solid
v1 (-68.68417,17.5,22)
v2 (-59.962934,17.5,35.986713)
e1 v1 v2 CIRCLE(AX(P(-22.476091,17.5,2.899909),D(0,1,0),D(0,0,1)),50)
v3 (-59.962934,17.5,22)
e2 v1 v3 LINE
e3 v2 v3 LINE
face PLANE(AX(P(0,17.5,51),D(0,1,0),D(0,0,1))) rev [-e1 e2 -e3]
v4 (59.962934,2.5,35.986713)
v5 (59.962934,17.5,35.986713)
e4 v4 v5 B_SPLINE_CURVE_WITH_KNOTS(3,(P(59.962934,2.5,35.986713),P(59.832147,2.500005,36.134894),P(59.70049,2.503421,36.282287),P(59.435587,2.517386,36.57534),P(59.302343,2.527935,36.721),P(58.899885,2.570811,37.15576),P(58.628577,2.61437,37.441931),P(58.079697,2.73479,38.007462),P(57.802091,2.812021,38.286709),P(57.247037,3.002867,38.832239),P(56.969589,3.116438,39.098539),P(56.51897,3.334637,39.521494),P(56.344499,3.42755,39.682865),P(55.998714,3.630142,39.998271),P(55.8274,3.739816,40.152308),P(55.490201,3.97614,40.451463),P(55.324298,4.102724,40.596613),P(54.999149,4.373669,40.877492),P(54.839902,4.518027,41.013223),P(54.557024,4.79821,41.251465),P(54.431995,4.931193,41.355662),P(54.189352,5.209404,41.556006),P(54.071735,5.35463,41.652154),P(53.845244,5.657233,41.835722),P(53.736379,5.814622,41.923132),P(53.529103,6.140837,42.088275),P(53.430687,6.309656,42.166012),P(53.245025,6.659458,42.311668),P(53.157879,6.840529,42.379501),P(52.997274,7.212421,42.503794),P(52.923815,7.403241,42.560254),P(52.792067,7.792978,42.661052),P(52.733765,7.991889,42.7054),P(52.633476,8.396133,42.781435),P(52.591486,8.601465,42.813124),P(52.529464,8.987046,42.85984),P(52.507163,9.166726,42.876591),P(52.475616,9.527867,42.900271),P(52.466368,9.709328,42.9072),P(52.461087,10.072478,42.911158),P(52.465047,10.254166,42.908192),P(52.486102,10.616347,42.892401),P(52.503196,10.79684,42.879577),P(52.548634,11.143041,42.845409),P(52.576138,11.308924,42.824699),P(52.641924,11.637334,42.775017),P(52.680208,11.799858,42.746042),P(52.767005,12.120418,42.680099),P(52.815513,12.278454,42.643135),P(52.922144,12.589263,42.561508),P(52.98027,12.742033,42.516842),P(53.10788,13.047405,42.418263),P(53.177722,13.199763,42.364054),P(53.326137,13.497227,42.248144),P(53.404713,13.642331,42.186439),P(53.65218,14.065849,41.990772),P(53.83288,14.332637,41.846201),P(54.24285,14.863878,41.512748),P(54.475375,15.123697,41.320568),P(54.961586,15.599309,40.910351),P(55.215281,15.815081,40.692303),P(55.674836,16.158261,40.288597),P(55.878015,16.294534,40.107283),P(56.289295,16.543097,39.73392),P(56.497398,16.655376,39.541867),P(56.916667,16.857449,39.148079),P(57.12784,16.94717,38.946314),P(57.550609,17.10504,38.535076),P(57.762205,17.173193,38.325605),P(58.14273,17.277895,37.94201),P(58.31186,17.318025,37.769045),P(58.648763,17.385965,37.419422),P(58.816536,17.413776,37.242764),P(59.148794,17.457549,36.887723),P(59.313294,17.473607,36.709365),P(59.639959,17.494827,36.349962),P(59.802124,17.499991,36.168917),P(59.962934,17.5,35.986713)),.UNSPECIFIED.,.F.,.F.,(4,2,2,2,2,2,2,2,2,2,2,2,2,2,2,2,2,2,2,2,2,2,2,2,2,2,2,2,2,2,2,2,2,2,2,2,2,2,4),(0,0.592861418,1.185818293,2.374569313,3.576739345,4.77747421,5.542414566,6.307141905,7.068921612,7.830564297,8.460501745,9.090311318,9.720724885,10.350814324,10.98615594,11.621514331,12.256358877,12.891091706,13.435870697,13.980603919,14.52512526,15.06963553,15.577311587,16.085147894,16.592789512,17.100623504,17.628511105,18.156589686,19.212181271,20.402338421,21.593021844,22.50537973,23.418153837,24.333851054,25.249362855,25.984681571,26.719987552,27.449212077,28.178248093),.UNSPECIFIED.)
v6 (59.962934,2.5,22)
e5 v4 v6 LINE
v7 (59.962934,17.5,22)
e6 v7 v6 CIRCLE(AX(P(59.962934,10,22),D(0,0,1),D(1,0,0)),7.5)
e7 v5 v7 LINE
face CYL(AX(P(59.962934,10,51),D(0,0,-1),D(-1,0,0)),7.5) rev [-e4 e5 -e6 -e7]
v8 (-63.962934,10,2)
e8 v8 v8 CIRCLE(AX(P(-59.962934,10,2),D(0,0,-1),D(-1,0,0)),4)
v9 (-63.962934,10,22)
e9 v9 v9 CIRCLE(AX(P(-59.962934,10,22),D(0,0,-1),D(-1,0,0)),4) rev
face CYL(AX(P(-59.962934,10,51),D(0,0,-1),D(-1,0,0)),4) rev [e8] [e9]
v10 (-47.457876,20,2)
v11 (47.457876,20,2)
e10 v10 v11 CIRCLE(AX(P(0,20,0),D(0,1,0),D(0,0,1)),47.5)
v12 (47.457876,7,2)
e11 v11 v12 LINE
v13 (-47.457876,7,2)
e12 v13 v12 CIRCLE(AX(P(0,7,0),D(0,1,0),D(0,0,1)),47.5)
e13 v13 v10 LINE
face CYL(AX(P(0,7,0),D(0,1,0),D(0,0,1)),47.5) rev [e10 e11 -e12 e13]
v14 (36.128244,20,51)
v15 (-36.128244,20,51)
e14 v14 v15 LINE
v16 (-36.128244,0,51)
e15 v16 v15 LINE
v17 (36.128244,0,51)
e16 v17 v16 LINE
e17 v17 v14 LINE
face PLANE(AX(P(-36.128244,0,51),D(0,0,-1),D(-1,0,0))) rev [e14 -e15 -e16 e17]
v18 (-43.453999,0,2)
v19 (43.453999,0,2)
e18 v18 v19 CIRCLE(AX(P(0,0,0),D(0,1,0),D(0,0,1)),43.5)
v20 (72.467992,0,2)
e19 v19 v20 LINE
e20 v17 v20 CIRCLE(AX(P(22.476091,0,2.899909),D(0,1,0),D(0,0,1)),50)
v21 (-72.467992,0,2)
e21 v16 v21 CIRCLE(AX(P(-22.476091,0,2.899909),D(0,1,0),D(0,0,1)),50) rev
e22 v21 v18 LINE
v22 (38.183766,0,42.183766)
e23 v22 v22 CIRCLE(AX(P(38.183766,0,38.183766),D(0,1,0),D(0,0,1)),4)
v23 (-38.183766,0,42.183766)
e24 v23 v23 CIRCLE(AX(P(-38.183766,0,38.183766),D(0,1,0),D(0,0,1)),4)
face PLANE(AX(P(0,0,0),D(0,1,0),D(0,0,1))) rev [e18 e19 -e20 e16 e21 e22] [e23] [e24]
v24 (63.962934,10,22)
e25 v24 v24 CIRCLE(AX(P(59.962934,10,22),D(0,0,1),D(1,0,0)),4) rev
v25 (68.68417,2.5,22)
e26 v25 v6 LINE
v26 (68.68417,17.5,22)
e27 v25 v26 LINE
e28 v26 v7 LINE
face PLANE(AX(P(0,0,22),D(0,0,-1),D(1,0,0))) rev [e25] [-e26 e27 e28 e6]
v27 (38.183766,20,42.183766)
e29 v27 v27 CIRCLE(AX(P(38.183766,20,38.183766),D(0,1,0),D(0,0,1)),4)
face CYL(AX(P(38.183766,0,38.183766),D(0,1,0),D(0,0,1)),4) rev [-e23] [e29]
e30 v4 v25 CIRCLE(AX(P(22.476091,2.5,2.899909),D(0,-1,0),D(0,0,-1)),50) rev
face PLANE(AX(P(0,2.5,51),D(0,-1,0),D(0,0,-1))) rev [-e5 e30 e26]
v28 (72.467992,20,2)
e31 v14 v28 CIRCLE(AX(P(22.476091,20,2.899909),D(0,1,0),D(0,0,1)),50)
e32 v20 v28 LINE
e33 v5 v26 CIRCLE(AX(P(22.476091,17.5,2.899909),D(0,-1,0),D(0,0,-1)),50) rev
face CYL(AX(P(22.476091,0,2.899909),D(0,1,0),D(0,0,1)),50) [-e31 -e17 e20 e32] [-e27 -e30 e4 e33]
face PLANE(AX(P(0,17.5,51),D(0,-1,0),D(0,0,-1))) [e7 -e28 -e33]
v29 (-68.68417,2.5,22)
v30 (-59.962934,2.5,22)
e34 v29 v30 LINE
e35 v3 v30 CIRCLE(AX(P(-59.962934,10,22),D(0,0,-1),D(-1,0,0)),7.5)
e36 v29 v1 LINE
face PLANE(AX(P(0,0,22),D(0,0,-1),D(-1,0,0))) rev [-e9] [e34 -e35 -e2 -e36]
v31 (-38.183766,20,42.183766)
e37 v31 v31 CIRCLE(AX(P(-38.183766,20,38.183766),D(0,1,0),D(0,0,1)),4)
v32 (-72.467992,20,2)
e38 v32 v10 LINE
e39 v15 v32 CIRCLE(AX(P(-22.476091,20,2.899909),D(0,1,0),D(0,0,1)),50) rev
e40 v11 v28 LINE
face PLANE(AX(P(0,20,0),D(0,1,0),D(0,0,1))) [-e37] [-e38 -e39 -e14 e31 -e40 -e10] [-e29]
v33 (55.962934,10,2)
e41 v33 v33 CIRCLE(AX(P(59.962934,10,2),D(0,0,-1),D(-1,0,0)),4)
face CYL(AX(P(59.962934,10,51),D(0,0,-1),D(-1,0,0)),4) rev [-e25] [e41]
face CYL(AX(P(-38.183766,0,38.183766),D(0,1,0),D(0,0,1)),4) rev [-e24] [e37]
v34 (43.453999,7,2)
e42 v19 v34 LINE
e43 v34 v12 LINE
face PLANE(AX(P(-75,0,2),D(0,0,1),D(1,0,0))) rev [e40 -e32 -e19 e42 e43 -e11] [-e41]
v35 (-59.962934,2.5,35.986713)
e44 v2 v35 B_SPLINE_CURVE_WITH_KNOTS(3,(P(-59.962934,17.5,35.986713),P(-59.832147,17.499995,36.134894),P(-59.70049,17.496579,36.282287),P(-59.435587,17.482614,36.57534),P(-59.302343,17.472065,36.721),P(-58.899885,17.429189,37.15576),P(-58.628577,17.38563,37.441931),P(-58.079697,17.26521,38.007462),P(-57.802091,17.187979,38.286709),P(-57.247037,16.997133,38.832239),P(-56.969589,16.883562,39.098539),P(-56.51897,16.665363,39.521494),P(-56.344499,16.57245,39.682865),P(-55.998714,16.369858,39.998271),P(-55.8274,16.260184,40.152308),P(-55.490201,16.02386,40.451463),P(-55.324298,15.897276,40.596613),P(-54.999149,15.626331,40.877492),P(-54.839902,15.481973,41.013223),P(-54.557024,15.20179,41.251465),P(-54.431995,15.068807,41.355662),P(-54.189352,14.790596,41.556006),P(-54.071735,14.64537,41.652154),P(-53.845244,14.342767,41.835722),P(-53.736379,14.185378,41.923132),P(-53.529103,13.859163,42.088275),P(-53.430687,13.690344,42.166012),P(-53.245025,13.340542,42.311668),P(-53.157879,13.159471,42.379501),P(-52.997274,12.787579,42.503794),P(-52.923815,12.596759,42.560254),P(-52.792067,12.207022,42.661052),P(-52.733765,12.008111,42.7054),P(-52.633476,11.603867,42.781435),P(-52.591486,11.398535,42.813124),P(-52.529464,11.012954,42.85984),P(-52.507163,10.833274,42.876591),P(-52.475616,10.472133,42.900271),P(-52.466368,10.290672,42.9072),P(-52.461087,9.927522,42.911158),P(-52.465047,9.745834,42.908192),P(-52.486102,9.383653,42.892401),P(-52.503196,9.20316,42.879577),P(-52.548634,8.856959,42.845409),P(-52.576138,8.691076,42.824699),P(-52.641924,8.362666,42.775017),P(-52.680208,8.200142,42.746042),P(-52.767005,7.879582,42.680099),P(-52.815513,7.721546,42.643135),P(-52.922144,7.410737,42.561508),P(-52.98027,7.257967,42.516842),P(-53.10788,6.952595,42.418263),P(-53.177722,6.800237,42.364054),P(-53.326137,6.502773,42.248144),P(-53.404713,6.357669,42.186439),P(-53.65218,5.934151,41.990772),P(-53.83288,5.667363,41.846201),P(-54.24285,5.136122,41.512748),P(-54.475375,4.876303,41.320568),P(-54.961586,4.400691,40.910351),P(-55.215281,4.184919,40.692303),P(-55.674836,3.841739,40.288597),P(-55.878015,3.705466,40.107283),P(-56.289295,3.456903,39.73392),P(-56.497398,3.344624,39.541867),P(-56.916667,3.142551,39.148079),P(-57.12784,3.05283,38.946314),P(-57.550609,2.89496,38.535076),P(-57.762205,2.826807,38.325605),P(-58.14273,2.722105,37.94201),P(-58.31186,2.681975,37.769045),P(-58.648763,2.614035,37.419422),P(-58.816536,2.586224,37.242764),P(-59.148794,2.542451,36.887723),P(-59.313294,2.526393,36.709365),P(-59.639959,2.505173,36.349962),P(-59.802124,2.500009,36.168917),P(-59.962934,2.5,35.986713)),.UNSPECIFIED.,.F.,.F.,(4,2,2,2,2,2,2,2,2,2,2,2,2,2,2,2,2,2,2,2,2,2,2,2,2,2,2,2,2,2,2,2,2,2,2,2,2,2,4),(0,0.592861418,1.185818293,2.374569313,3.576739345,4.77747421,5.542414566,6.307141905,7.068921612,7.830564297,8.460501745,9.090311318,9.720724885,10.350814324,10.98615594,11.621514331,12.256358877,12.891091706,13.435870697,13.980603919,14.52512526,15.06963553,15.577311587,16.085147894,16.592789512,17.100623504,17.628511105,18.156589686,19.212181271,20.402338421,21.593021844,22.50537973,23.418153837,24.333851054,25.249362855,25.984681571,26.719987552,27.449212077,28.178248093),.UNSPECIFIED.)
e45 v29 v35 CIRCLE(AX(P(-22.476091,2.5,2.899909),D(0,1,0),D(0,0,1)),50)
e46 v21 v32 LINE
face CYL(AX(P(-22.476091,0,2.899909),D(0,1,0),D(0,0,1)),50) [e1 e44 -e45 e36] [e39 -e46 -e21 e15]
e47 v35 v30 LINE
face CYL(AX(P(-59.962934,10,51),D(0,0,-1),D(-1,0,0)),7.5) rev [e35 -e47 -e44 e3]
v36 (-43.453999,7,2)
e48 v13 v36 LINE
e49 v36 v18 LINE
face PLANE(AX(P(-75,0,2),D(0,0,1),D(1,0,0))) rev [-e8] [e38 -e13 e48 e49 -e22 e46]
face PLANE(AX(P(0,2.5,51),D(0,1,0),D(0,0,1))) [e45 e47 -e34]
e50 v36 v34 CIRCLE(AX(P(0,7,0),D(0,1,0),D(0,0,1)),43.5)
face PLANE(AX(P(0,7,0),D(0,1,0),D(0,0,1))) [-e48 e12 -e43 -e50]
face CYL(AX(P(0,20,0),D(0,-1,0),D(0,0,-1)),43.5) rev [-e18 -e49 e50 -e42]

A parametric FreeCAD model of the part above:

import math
import FreeCAD as App
import Part
import Sketcher

V = App.Vector


def add_polygon(sketch, points):
    """Adds a closed chain of lines whose ends are joined by coincident constraints."""
    first, n = sketch.GeometryCount, len(points)
    for a, b in zip(points, points[1:] + points[:1]):
        sketch.addGeometry(Part.LineSegment(App.Vector(*a, 0), App.Vector(*b, 0)), False)
    for i in range(n):
        sketch.addConstraint(Sketcher.Constraint("Coincident", first + i, 2, first + (i + 1) % n, 1))

doc = App.newDocument("Part")
body = doc.addObject("PartDesign::Body", "Body")

sketch1 = body.newObject("Sketcher::SketchObject", "Sketch")
sketch1.AttachmentSupport = (doc.getObject("XZ_Plane"), [""])
sketch1.MapMode = "FlatFace"
sketch1.addGeometry(Part.Circle(V(0, 0, 0), V(0, 0, 1), 62.5), False)
sketch1.addGeometry(Part.Circle(V(0, 0, 0), V(0, 0, 1), 43.5), False)
sketch1.addConstraint(Sketcher.Constraint("Coincident", 0, 3, -1, 1))
sketch1.addConstraint(Sketcher.Constraint("Coincident", 1, 3, -1, 1))
sketch1.addConstraint(Sketcher.Constraint("Diameter", 0, 125.0))
sketch1.addConstraint(Sketcher.Constraint("Diameter", 1, 87.0))
pad1 = body.newObject("PartDesign::Pad", "Pad")
pad1.Profile = sketch1
pad1.Length = 20
pad1.Reversed = True

sketch2 = body.newObject("Sketcher::SketchObject", "Sketch001")
sketch2.AttachmentSupport = (doc.getObject("XZ_Plane"), [""])
sketch2.MapMode = "FlatFace"
sketch2.AttachmentOffset = App.Placement(V(0, 0, -20), App.Rotation())
sketch2.addGeometry(Part.Circle(V(0, 0, 0), V(0, 0, 1), 47.5), False)
sketch2.addConstraint(Sketcher.Constraint("Coincident", 0, 3, -1, 1))
sketch2.addConstraint(Sketcher.Constraint("Diameter", 0, 95.0))
pocket1 = body.newObject("PartDesign::Pocket", "Pocket")
pocket1.Profile = sketch2
pocket1.Length = 13
pocket1.Reversed = True

sketch3 = body.newObject("Sketcher::SketchObject", "Sketch002")
sketch3.AttachmentSupport = (doc.getObject("XZ_Plane"), [""])
sketch3.MapMode = "FlatFace"
sketch3.AttachmentOffset = App.Placement(V(0, 0, -20), App.Rotation())
sketch3.addGeometry(Part.Circle(V(38.183766, -38.183766, 0), V(0, 0, 1), 4), False)
sketch3.addGeometry(Part.Circle(V(38.183766, 38.183766, 0), V(0, 0, 1), 4), False)
sketch3.addGeometry(Part.Circle(V(-38.183766, 38.183766, 0), V(0, 0, 1), 4), False)
sketch3.addGeometry(Part.Circle(V(-38.183766, -38.183766, 0), V(0, 0, 1), 4), False)
sketch3.addConstraint(Sketcher.Constraint("Equal", 0, 1))
sketch3.addConstraint(Sketcher.Constraint("Equal", 1, 2))
sketch3.addConstraint(Sketcher.Constraint("Equal", 2, 3))
sketch3.addConstraint(Sketcher.Constraint("Symmetric", 0, 3, 2, 3, -1, 1))
sketch3.addConstraint(Sketcher.Constraint("Symmetric", 1, 3, 3, 3, -1, 1))
sketch3.addConstraint(Sketcher.Constraint("Symmetric", 1, 3, 2, 3, -2))
sketch3.addConstraint(Sketcher.Constraint("Diameter", 0, 8.0))
sketch3.addConstraint(Sketcher.Constraint("DistanceX", -1, 1, 0, 3, 38.183766))
sketch3.addConstraint(Sketcher.Constraint("DistanceY", 0, 3, -1, 1, 38.183766))
pocket2 = body.newObject("PartDesign::Pocket", "Pocket001")
pocket2.Profile = sketch3
pocket2.Type = "ThroughAll"
pocket2.Reversed = True

sketch4 = body.newObject("Sketcher::SketchObject", "Sketch003")
sketch4.AttachmentSupport = (doc.getObject("XZ_Plane"), [""])
sketch4.MapMode = "FlatFace"
sketch4.AttachmentOffset = App.Placement(V(0, 0, -20), App.Rotation())
add_polygon(sketch4, [(-75, -62.5), (-75, 2), (75, 2), (75, -62.5)])
add_polygon(sketch4, [(-36.128244, 51), (-36.128244, 62.5), (36.128244, 62.5), (36.128244, 51)])
sketch4.addConstraint(Sketcher.Constraint("Vertical", 0))
sketch4.addConstraint(Sketcher.Constraint("Horizontal", 1))
sketch4.addConstraint(Sketcher.Constraint("Vertical", 2))
sketch4.addConstraint(Sketcher.Constraint("Horizontal", 3))
sketch4.addConstraint(Sketcher.Constraint("Vertical", 4))
sketch4.addConstraint(Sketcher.Constraint("Horizontal", 5))
sketch4.addConstraint(Sketcher.Constraint("Vertical", 6))
sketch4.addConstraint(Sketcher.Constraint("Horizontal", 7))
sketch4.addConstraint(Sketcher.Constraint("DistanceX", 1, 1, 1, 2, 150.0))
sketch4.addConstraint(Sketcher.Constraint("DistanceY", 0, 1, 0, 2, 64.5))
sketch4.addConstraint(Sketcher.Constraint("DistanceY", 4, 1, 4, 2, 11.5))
sketch4.addConstraint(Sketcher.Constraint("DistanceX", 0, 2, -1, 1, 75.0))
sketch4.addConstraint(Sketcher.Constraint("DistanceY", -1, 1, 0, 2, 2.0))
sketch4.addConstraint(Sketcher.Constraint("DistanceY", -1, 1, 6, 2, 51.0))
sketch4.addConstraint(Sketcher.Constraint("DistanceX", 5, 1, 5, 2, 72.256488))
sketch4.addConstraint(Sketcher.Constraint("DistanceX", 4, 2, -1, 1, 36.128244))
pocket3 = body.newObject("PartDesign::Pocket", "Pocket002")
pocket3.Profile = sketch4
pocket3.Type = "ThroughAll"
pocket3.Reversed = True

sketch5 = body.newObject("Sketcher::SketchObject", "Sketch004")
sketch5.AttachmentSupport = (doc.getObject("XZ_Plane"), [""])
sketch5.MapMode = "FlatFace"
sketch5.AttachmentOffset = App.Placement(V(0, 0, -20), App.Rotation())
sketch5.addGeometry(Part.LineSegment(V(-62.467992, 2, 0), V(-72.467992, 2, 0)), False)
sketch5.addGeometry(Part.ArcOfCircle(Part.Circle(V(-22.476091, 2.899909, 0), V(0, 0, 1), 50), math.radians(105.845427), math.radians(181.031276)), False)
sketch5.addGeometry(Part.ArcOfCircle(Part.Circle(V(0, 0, 0), V(0, 0, 1), 62.5), math.radians(125.31364), math.radians(178.166222)), False)
sketch5.addGeometry(Part.ArcOfCircle(Part.Circle(V(0, 0, 0), V(0, 0, 1), 62.5), math.radians(1.833778), math.radians(54.68636)), False)
sketch5.addGeometry(Part.ArcOfCircle(Part.Circle(V(22.476091, 2.899909, 0), V(0, 0, 1), 50), math.radians(-1.031276), math.radians(74.154573)), False)
sketch5.addGeometry(Part.LineSegment(V(72.467992, 2, 0), V(62.467992, 2, 0)), False)
sketch5.addConstraint(Sketcher.Constraint("Coincident", 0, 2, 1, 2))
sketch5.addConstraint(Sketcher.Constraint("Coincident", 1, 1, 2, 1))
sketch5.addConstraint(Sketcher.Constraint("Coincident", 2, 2, 0, 1))
sketch5.addConstraint(Sketcher.Constraint("Coincident", 3, 2, 4, 2))
sketch5.addConstraint(Sketcher.Constraint("Coincident", 4, 1, 5, 1))
sketch5.addConstraint(Sketcher.Constraint("Coincident", 5, 2, 3, 1))
sketch5.addConstraint(Sketcher.Constraint("Horizontal", 0))
sketch5.addConstraint(Sketcher.Constraint("Horizontal", 5))
sketch5.addConstraint(Sketcher.Constraint("Coincident", 2, 3, -1, 1))
sketch5.addConstraint(Sketcher.Constraint("Coincident", 3, 3, -1, 1))
sketch5.addConstraint(Sketcher.Constraint("Equal", 2, 3))
sketch5.addConstraint(Sketcher.Constraint("Equal", 1, 4))
sketch5.addConstraint(Sketcher.Constraint("Symmetric", 1, 3, 4, 3, -2))
sketch5.addConstraint(Sketcher.Constraint("Horizontal", 2, 2, 4, 1))
sketch5.addConstraint(Sketcher.Constraint("Radius", 1, 50.0))
sketch5.addConstraint(Sketcher.Constraint("Radius", 2, 62.5))
sketch5.addConstraint(Sketcher.Constraint("DistanceX", 0, 2, 0, 1, 10.0))
sketch5.addConstraint(Sketcher.Constraint("DistanceY", -1, 1, 0, 2, 2.0))
sketch5.addConstraint(Sketcher.Constraint("DistanceY", -1, 1, 1, 1, 51.0))
pad2 = body.newObject("PartDesign::Pad", "Pad001")
pad2.Profile = sketch5
pad2.Length = 20

sketch6 = body.newObject("Sketcher::SketchObject", "Sketch005")
sketch6.AttachmentSupport = (doc.getObject("XY_Plane"), [""])
sketch6.MapMode = "FlatFace"
sketch6.AttachmentOffset = App.Placement(V(0, 0, 2), App.Rotation())
sketch6.addGeometry(Part.Circle(V(59.962934, 10, 0), V(0, 0, 1), 4), False)
sketch6.addConstraint(Sketcher.Constraint("Diameter", 0, 8.0))
sketch6.addConstraint(Sketcher.Constraint("DistanceY", -1, 1, 0, 3, 10.0))
sketch6.addConstraint(Sketcher.Constraint("DistanceX", -1, 1, 0, 3, 59.962934))
pocket4 = body.newObject("PartDesign::Pocket", "Pocket003")
pocket4.Profile = sketch6
pocket4.Type = "ThroughAll"
pocket4.Reversed = True

sketch7 = body.newObject("Sketcher::SketchObject", "Sketch006")
sketch7.AttachmentSupport = (doc.getObject("XY_Plane"), [""])
sketch7.MapMode = "FlatFace"
sketch7.AttachmentOffset = App.Placement(V(0, 0, 2), App.Rotation())
sketch7.addGeometry(Part.Circle(V(-59.962934, 10, 0), V(0, 0, 1), 4), False)
sketch7.addConstraint(Sketcher.Constraint("Diameter", 0, 8.0))
sketch7.addConstraint(Sketcher.Constraint("DistanceY", -1, 1, 0, 3, 10.0))
sketch7.addConstraint(Sketcher.Constraint("DistanceX", 0, 3, -1, 1, 59.962934))
pocket5 = body.newObject("PartDesign::Pocket", "Pocket004")
pocket5.Profile = sketch7
pocket5.Type = "ThroughAll"
pocket5.Reversed = True

sketch8 = body.newObject("Sketcher::SketchObject", "Sketch007")
sketch8.AttachmentSupport = (doc.getObject("XY_Plane"), [""])
sketch8.MapMode = "FlatFace"
sketch8.AttachmentOffset = App.Placement(V(0, 0, 22), App.Rotation())
sketch8.addGeometry(Part.LineSegment(V(-74.962934, 2.5, 0), V(-74.962934, 17.5, 0)), False)
sketch8.addGeometry(Part.LineSegment(V(-74.962934, 17.5, 0), V(-59.962934, 17.5, 0)), False)
sketch8.addGeometry(Part.ArcOfCircle(Part.Circle(V(-59.962934, 10, 0), V(0, 0, 1), 7.5), math.radians(-90), math.radians(90)), False)
sketch8.addGeometry(Part.LineSegment(V(-59.962934, 2.5, 0), V(-74.962934, 2.5, 0)), False)
sketch8.addGeometry(Part.Circle(V(-59.962934, 10, 0), V(0, 0, 1), 4), False)
sketch8.addConstraint(Sketcher.Constraint("Coincident", 0, 2, 1, 1))
sketch8.addConstraint(Sketcher.Constraint("Tangent", 1, 2, 2, 2))
sketch8.addConstraint(Sketcher.Constraint("Tangent", 2, 1, 3, 1))
sketch8.addConstraint(Sketcher.Constraint("Coincident", 3, 2, 0, 1))
sketch8.addConstraint(Sketcher.Constraint("Vertical", 0))
sketch8.addConstraint(Sketcher.Constraint("Horizontal", 1))
sketch8.addConstraint(Sketcher.Constraint("Horizontal", 3))
sketch8.addConstraint(Sketcher.Constraint("Coincident", 4, 3, 2, 3))
sketch8.addConstraint(Sketcher.Constraint("Equal", 3, 0))
sketch8.addConstraint(Sketcher.Constraint("Diameter", 4, 8.0))
sketch8.addConstraint(Sketcher.Constraint("Radius", 2, 7.5))
sketch8.addConstraint(Sketcher.Constraint("DistanceY", -1, 1, 2, 3, 10.0))
sketch8.addConstraint(Sketcher.Constraint("DistanceX", 2, 3, -1, 1, 59.962934))
pocket6 = body.newObject("PartDesign::Pocket", "Pocket005")
pocket6.Profile = sketch8
pocket6.Length = 70.742876
pocket6.Reversed = True
doc.recompute()

mirrored = body.newObject("PartDesign::Mirrored", "Mirrored")
mirrored.Originals = [pocket6]
mirrored.MirrorPlane = (doc.getObject("YZ_Plane"), [""])
body.Tip = mirrored

doc.recompute()
